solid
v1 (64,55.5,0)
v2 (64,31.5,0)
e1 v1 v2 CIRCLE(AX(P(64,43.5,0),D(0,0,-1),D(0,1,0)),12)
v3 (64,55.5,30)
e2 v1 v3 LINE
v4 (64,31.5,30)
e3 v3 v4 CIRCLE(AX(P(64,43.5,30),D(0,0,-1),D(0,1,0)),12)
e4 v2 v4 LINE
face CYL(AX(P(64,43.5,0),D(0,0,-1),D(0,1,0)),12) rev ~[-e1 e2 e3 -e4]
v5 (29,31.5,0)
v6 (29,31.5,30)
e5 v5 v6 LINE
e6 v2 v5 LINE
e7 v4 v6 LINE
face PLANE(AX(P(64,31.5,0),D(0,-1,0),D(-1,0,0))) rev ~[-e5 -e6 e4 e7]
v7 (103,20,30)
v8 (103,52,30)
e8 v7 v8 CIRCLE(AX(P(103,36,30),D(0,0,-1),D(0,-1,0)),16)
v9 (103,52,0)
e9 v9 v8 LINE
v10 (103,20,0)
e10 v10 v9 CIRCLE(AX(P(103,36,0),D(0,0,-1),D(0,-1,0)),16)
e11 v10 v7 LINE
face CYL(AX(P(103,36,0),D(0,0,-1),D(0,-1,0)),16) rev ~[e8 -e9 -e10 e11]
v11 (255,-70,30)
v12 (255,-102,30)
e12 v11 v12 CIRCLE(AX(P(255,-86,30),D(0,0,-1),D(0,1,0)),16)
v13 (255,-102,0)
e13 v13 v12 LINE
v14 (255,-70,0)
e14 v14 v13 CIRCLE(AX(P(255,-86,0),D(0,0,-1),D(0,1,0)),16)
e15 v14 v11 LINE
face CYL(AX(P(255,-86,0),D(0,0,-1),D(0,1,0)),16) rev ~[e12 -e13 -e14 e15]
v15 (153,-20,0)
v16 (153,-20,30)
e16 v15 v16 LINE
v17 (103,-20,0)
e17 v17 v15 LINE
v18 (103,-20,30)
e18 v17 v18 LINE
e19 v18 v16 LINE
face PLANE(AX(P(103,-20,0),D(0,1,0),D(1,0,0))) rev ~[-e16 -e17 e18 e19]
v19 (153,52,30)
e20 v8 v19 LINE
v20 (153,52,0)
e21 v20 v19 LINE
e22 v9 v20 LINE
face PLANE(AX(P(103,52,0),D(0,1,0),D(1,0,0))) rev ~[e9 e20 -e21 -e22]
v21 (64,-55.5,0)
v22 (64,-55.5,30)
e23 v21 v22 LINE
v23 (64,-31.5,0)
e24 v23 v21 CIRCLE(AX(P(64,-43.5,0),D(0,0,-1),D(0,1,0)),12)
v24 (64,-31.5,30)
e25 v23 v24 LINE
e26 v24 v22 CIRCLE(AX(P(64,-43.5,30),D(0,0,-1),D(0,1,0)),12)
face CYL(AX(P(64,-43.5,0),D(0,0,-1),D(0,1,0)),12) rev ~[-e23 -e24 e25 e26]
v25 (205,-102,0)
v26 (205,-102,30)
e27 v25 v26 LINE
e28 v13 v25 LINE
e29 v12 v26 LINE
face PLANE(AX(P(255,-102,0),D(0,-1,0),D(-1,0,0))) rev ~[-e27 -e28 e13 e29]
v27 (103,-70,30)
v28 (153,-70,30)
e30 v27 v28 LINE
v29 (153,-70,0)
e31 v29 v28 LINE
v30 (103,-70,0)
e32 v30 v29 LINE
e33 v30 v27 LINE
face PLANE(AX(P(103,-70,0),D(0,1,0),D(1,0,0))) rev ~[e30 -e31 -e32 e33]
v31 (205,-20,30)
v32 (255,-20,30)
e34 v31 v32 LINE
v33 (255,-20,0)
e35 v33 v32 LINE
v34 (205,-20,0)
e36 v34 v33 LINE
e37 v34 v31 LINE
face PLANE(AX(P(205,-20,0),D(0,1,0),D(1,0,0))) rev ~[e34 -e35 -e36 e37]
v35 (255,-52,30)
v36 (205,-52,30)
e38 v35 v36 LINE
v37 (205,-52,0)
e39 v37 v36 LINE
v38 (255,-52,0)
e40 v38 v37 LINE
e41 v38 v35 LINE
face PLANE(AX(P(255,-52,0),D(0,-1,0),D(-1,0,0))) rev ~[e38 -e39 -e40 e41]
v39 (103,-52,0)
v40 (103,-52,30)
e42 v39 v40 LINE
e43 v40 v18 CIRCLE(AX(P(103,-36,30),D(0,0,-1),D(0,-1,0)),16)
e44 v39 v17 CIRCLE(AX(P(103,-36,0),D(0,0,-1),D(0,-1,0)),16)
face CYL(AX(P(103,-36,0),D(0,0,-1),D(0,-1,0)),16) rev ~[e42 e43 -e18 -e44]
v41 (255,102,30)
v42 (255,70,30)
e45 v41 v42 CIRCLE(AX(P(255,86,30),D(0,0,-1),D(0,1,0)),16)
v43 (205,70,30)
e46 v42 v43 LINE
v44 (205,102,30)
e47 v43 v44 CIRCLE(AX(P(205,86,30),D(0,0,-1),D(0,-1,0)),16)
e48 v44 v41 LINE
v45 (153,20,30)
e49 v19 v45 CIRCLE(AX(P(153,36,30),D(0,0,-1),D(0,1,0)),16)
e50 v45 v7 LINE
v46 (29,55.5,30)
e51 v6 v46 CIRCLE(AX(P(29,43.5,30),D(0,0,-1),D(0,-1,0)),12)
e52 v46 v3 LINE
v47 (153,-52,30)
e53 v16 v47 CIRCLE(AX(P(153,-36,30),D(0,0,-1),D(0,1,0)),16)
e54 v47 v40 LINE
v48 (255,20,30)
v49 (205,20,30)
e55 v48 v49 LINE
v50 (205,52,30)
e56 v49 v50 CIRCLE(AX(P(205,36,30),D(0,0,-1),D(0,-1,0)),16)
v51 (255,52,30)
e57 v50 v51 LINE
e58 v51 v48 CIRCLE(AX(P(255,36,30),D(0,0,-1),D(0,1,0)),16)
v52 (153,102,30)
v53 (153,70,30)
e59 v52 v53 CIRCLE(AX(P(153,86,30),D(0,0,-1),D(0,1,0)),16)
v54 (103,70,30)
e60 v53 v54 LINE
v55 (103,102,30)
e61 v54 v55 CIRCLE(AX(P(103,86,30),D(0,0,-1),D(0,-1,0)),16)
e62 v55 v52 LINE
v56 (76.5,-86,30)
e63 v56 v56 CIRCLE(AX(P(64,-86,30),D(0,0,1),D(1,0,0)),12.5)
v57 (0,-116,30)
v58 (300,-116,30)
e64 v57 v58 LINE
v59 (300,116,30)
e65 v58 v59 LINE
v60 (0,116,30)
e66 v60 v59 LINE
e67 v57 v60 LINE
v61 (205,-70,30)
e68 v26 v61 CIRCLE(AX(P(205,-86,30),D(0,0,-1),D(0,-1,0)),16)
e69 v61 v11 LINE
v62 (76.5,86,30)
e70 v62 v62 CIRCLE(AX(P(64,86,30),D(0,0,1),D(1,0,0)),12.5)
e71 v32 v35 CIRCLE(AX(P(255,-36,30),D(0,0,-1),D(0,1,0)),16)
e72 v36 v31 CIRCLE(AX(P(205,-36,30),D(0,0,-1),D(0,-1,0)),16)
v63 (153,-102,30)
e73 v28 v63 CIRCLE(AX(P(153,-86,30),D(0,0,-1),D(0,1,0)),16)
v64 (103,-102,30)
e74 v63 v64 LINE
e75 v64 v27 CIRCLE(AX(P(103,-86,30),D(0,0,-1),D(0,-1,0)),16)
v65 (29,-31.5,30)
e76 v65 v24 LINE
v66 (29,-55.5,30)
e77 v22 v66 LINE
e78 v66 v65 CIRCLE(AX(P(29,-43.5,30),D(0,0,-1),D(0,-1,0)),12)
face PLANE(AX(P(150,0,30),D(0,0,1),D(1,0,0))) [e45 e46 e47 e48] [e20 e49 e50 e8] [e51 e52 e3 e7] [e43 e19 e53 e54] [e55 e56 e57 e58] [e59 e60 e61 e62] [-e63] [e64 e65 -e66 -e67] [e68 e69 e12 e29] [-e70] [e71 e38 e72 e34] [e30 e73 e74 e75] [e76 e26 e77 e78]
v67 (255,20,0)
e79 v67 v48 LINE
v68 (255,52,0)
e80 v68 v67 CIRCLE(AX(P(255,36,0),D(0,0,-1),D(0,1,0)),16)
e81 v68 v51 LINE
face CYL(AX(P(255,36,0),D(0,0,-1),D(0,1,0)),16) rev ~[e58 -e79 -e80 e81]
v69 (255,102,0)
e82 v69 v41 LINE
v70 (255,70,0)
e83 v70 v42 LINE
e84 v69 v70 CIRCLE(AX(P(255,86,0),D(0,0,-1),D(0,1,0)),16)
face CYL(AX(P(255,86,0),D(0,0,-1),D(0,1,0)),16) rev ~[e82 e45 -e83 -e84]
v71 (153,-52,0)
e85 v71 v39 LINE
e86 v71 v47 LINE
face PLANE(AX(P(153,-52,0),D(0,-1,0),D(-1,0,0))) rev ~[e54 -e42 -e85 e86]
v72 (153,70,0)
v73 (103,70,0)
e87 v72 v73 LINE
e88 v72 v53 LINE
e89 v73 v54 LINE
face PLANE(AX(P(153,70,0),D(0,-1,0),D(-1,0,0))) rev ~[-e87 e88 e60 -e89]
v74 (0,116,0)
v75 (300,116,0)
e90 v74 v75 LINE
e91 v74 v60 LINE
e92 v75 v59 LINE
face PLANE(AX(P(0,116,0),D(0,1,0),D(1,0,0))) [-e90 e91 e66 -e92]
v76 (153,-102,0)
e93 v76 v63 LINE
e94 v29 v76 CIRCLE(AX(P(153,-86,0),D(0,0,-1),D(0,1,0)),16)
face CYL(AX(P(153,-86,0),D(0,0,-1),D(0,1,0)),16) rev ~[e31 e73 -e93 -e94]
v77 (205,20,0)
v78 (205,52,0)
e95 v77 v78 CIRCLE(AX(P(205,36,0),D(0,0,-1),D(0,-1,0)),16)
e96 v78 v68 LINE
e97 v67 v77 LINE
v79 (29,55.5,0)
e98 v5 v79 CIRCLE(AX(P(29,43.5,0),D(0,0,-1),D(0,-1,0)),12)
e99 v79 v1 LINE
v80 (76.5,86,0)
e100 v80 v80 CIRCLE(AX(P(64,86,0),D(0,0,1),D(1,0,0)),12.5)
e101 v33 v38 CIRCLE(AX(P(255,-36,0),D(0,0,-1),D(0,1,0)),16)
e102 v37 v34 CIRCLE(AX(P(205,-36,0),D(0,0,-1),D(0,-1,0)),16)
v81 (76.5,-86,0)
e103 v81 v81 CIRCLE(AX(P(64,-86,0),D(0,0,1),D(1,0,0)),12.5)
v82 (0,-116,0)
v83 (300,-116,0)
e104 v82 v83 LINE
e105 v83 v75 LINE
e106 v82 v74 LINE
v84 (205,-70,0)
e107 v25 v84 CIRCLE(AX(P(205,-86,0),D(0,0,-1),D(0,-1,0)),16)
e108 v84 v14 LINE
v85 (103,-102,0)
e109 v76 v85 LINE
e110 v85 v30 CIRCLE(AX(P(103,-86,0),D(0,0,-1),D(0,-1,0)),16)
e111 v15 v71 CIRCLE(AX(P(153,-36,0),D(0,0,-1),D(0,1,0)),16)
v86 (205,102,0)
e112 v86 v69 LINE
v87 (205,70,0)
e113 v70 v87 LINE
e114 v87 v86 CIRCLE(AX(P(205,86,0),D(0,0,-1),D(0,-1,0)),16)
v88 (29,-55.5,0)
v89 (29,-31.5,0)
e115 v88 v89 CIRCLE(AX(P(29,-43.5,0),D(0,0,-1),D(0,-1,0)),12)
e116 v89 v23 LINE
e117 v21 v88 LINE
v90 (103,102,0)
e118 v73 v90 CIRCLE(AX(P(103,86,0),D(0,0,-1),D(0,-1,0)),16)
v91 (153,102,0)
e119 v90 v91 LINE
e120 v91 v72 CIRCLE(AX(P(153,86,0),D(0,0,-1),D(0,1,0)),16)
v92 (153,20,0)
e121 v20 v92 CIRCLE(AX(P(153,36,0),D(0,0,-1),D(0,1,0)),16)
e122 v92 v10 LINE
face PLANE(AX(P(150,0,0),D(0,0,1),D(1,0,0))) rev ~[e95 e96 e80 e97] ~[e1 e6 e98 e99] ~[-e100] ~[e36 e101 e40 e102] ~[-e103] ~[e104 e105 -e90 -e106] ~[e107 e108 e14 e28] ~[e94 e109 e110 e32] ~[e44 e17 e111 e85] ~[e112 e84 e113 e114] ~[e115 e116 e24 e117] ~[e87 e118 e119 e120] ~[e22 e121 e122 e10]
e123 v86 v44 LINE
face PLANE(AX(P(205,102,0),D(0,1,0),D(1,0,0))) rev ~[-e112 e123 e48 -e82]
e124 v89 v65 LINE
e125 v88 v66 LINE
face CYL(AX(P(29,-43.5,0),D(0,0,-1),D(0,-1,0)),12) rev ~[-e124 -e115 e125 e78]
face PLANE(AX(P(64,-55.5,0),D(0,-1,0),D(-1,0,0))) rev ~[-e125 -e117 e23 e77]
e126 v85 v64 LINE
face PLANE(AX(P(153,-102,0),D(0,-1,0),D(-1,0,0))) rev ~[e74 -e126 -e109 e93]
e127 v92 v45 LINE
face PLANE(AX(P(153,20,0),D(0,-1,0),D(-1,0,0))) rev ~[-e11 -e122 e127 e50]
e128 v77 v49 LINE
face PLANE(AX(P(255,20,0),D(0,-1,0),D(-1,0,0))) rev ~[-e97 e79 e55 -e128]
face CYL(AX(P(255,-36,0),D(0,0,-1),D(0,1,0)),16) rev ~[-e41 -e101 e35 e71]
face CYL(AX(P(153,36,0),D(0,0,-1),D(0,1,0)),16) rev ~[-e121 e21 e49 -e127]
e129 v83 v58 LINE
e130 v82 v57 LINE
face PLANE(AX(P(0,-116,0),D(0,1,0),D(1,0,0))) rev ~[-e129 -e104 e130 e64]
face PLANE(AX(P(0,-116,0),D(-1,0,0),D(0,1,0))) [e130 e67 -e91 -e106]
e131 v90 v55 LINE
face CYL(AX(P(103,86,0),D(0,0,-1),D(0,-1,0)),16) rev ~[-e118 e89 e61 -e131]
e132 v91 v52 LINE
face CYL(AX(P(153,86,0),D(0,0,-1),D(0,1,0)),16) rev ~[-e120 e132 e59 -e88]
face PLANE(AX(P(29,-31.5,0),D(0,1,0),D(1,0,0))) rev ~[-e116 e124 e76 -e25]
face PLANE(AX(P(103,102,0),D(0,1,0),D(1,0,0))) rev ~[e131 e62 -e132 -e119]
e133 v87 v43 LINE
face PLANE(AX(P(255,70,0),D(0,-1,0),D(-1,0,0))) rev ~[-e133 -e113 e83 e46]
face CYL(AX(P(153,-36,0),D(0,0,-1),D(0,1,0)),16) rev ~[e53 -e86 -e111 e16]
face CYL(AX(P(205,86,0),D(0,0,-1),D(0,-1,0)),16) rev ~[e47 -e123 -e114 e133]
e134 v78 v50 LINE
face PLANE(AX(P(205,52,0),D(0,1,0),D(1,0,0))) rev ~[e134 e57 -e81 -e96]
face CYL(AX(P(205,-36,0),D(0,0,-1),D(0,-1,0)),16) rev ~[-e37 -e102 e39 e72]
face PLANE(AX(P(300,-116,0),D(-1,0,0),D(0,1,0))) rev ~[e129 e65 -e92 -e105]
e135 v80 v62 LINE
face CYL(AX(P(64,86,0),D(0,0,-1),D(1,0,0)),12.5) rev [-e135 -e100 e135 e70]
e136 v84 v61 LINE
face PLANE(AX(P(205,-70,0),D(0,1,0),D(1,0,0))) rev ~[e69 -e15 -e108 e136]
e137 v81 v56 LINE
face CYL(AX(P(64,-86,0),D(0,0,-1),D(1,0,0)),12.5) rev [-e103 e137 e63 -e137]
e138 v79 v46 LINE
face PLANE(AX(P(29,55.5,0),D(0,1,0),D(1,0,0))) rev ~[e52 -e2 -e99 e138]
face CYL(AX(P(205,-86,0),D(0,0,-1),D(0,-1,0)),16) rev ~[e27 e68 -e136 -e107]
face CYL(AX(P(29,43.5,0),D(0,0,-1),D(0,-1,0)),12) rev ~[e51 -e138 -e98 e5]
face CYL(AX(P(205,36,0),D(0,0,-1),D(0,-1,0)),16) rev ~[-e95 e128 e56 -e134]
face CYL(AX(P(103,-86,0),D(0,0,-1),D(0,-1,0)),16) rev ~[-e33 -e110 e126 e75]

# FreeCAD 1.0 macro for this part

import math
import FreeCAD as App
import Part
import Sketcher

V = App.Vector
Q = App.Units.Quantity

doc = App.newDocument("Part")
body = doc.addObject("PartDesign::Body", "Body")

# Sketch on XY plane
sketch1 = doc.addObject("Sketcher::SketchObject", "Sketch")
body.addObject(sketch1)
sketch1.AttachmentSupport = (doc.XY_Plane, [""])
sketch1.MapMode = "FlatFace"
sketch1.addGeometry(Part.LineSegment(V(0, 116, 0), V(0, -116, 0)), False)
sketch1.addGeometry(Part.LineSegment(V(0, -116, 0), V(300, -116, 0)), False)
sketch1.addGeometry(Part.LineSegment(V(300, -116, 0), V(300, 116, 0)), False)
sketch1.addGeometry(Part.LineSegment(V(300, 116, 0), V(0, 116, 0)), False)
sketch1.addGeometry(Part.Circle(V(64, -86, 0), V(0, 0, 1), 12.5), False)
sketch1.addGeometry(Part.ArcOfCircle(Part.Circle(V(153, -86, 0), V(0, 0, 1), 16), math.radians(-90), math.radians(90)), False)
sketch1.addGeometry(Part.LineSegment(V(153, -102, 0), V(103, -102, 0)), False)
sketch1.addGeometry(Part.ArcOfCircle(Part.Circle(V(103, -86, 0), V(0, 0, 1), 16), math.radians(90), math.radians(270)), False)
sketch1.addGeometry(Part.LineSegment(V(103, -70, 0), V(153, -70, 0)), False)
sketch1.addGeometry(Part.ArcOfCircle(Part.Circle(V(64, -43.5, 0), V(0, 0, 1), 12), math.radians(-90), math.radians(90)), False)
sketch1.addGeometry(Part.LineSegment(V(64, -55.5, 0), V(29, -55.5, 0)), False)
sketch1.addGeometry(Part.ArcOfCircle(Part.Circle(V(29, -43.5, 0), V(0, 0, 1), 12), math.radians(90), math.radians(270)), False)
sketch1.addGeometry(Part.LineSegment(V(29, -31.5, 0), V(64, -31.5, 0)), False)
sketch1.addGeometry(Part.ArcOfCircle(Part.Circle(V(153, -36, 0), V(0, 0, 1), 16), math.radians(-90), math.radians(90)), False)
sketch1.addGeometry(Part.LineSegment(V(153, -52, 0), V(103, -52, 0)), False)
sketch1.addGeometry(Part.ArcOfCircle(Part.Circle(V(103, -36, 0), V(0, 0, 1), 16), math.radians(90), math.radians(270)), False)
sketch1.addGeometry(Part.LineSegment(V(103, -20, 0), V(153, -20, 0)), False)
sketch1.addGeometry(Part.ArcOfCircle(Part.Circle(V(255, -86, 0), V(0, 0, 1), 16), math.radians(-90), math.radians(90)), False)
sketch1.addGeometry(Part.LineSegment(V(255, -102, 0), V(205, -102, 0)), False)
sketch1.addGeometry(Part.ArcOfCircle(Part.Circle(V(205, -86, 0), V(0, 0, 1), 16), math.radians(90), math.radians(270)), False)
sketch1.addGeometry(Part.LineSegment(V(205, -70, 0), V(255, -70, 0)), False)
sketch1.addGeometry(Part.ArcOfCircle(Part.Circle(V(255, -36, 0), V(0, 0, 1), 16), math.radians(-90), math.radians(90)), False)
sketch1.addGeometry(Part.LineSegment(V(255, -52, 0), V(205, -52, 0)), False)
sketch1.addGeometry(Part.ArcOfCircle(Part.Circle(V(205, -36, 0), V(0, 0, 1), 16), math.radians(90), math.radians(270)), False)
sketch1.addGeometry(Part.LineSegment(V(205, -20, 0), V(255, -20, 0)), False)
sketch1.addGeometry(Part.LineSegment(V(64, 31.5, 0), V(29, 31.5, 0)), False)
sketch1.addGeometry(Part.ArcOfCircle(Part.Circle(V(29, 43.5, 0), V(0, 0, 1), 12), math.radians(90), math.radians(270)), False)
sketch1.addGeometry(Part.LineSegment(V(29, 55.5, 0), V(64, 55.5, 0)), False)
sketch1.addGeometry(Part.ArcOfCircle(Part.Circle(V(64, 43.5, 0), V(0, 0, 1), 12), math.radians(-90), math.radians(90)), False)
sketch1.addGeometry(Part.LineSegment(V(153, 20, 0), V(103, 20, 0)), False)
sketch1.addGeometry(Part.ArcOfCircle(Part.Circle(V(103, 36, 0), V(0, 0, 1), 16), math.radians(90), math.radians(270)), False)
sketch1.addGeometry(Part.LineSegment(V(103, 52, 0), V(153, 52, 0)), False)
sketch1.addGeometry(Part.ArcOfCircle(Part.Circle(V(153, 36, 0), V(0, 0, 1), 16), math.radians(-90), math.radians(90)), False)
sketch1.addGeometry(Part.Circle(V(64, 86, 0), V(0, 0, 1), 12.5), False)
sketch1.addGeometry(Part.LineSegment(V(153, 70, 0), V(103, 70, 0)), False)
sketch1.addGeometry(Part.ArcOfCircle(Part.Circle(V(103, 86, 0), V(0, 0, 1), 16), math.radians(90), math.radians(270)), False)
sketch1.addGeometry(Part.LineSegment(V(103, 102, 0), V(153, 102, 0)), False)
sketch1.addGeometry(Part.ArcOfCircle(Part.Circle(V(153, 86, 0), V(0, 0, 1), 16), math.radians(-90), math.radians(90)), False)
sketch1.addGeometry(Part.LineSegment(V(255, 20, 0), V(205, 20, 0)), False)
sketch1.addGeometry(Part.ArcOfCircle(Part.Circle(V(205, 36, 0), V(0, 0, 1), 16), math.radians(90), math.radians(270)), False)
sketch1.addGeometry(Part.LineSegment(V(205, 52, 0), V(255, 52, 0)), False)
sketch1.addGeometry(Part.ArcOfCircle(Part.Circle(V(255, 36, 0), V(0, 0, 1), 16), math.radians(-90), math.radians(90)), False)
sketch1.addGeometry(Part.LineSegment(V(255, 70, 0), V(205, 70, 0)), False)
sketch1.addGeometry(Part.ArcOfCircle(Part.Circle(V(205, 86, 0), V(0, 0, 1), 16), math.radians(90), math.radians(270)), False)
sketch1.addGeometry(Part.LineSegment(V(205, 102, 0), V(255, 102, 0)), False)
sketch1.addGeometry(Part.ArcOfCircle(Part.Circle(V(255, 86, 0), V(0, 0, 1), 16), math.radians(-90), math.radians(90)), False)
sketch1.addConstraint(Sketcher.Constraint("Coincident", 0, 2, 1, 1))
sketch1.addConstraint(Sketcher.Constraint("Coincident", 1, 2, 2, 1))
sketch1.addConstraint(Sketcher.Constraint("Coincident", 2, 2, 3, 1))
sketch1.addConstraint(Sketcher.Constraint("Coincident", 3, 2, 0, 1))
sketch1.addConstraint(Sketcher.Constraint("Tangent", 5, 1, 6, 1))
sketch1.addConstraint(Sketcher.Constraint("Tangent", 6, 2, 7, 2))
sketch1.addConstraint(Sketcher.Constraint("Tangent", 7, 1, 8, 1))
sketch1.addConstraint(Sketcher.Constraint("Tangent", 8, 2, 5, 2))
sketch1.addConstraint(Sketcher.Constraint("Tangent", 9, 1, 10, 1))
sketch1.addConstraint(Sketcher.Constraint("Tangent", 10, 2, 11, 2))
sketch1.addConstraint(Sketcher.Constraint("Tangent", 11, 1, 12, 1))
sketch1.addConstraint(Sketcher.Constraint("Tangent", 12, 2, 9, 2))
sketch1.addConstraint(Sketcher.Constraint("Tangent", 13, 1, 14, 1))
sketch1.addConstraint(Sketcher.Constraint("Tangent", 14, 2, 15, 2))
sketch1.addConstraint(Sketcher.Constraint("Tangent", 15, 1, 16, 1))
sketch1.addConstraint(Sketcher.Constraint("Tangent", 16, 2, 13, 2))
sketch1.addConstraint(Sketcher.Constraint("Tangent", 17, 1, 18, 1))
sketch1.addConstraint(Sketcher.Constraint("Tangent", 18, 2, 19, 2))
sketch1.addConstraint(Sketcher.Constraint("Tangent", 19, 1, 20, 1))
sketch1.addConstraint(Sketcher.Constraint("Tangent", 20, 2, 17, 2))
sketch1.addConstraint(Sketcher.Constraint("Tangent", 21, 1, 22, 1))
sketch1.addConstraint(Sketcher.Constraint("Tangent", 22, 2, 23, 2))
sketch1.addConstraint(Sketcher.Constraint("Tangent", 23, 1, 24, 1))
sketch1.addConstraint(Sketcher.Constraint("Tangent", 24, 2, 21, 2))
sketch1.addConstraint(Sketcher.Constraint("Tangent", 25, 2, 26, 2))
sketch1.addConstraint(Sketcher.Constraint("Tangent", 26, 1, 27, 1))
sketch1.addConstraint(Sketcher.Constraint("Tangent", 27, 2, 28, 2))
sketch1.addConstraint(Sketcher.Constraint("Tangent", 28, 1, 25, 1))
sketch1.addConstraint(Sketcher.Constraint("Tangent", 29, 2, 30, 2))
sketch1.addConstraint(Sketcher.Constraint("Tangent", 30, 1, 31, 1))
sketch1.addConstraint(Sketcher.Constraint("Tangent", 31, 2, 32, 2))
sketch1.addConstraint(Sketcher.Constraint("Tangent", 32, 1, 29, 1))
sketch1.addConstraint(Sketcher.Constraint("Tangent", 34, 2, 35, 2))
sketch1.addConstraint(Sketcher.Constraint("Tangent", 35, 1, 36, 1))
sketch1.addConstraint(Sketcher.Constraint("Tangent", 36, 2, 37, 2))
sketch1.addConstraint(Sketcher.Constraint("Tangent", 37, 1, 34, 1))
sketch1.addConstraint(Sketcher.Constraint("Tangent", 38, 2, 39, 2))
sketch1.addConstraint(Sketcher.Constraint("Tangent", 39, 1, 40, 1))
sketch1.addConstraint(Sketcher.Constraint("Tangent", 40, 2, 41, 2))
sketch1.addConstraint(Sketcher.Constraint("Tangent", 41, 1, 38, 1))
sketch1.addConstraint(Sketcher.Constraint("Tangent", 42, 2, 43, 2))
sketch1.addConstraint(Sketcher.Constraint("Tangent", 43, 1, 44, 1))
sketch1.addConstraint(Sketcher.Constraint("Tangent", 44, 2, 45, 2))
sketch1.addConstraint(Sketcher.Constraint("Tangent", 45, 1, 42, 1))
sketch1.addConstraint(Sketcher.Constraint("Vertical", 0))
sketch1.addConstraint(Sketcher.Constraint("Horizontal", 1))
sketch1.addConstraint(Sketcher.Constraint("Vertical", 2))
sketch1.addConstraint(Sketcher.Constraint("Horizontal", 3))
sketch1.addConstraint(Sketcher.Constraint("Horizontal", 6))
sketch1.addConstraint(Sketcher.Constraint("Horizontal", 8))
sketch1.addConstraint(Sketcher.Constraint("Horizontal", 10))
sketch1.addConstraint(Sketcher.Constraint("Horizontal", 12))
sketch1.addConstraint(Sketcher.Constraint("Horizontal", 14))
sketch1.addConstraint(Sketcher.Constraint("Horizontal", 16))
sketch1.addConstraint(Sketcher.Constraint("Horizontal", 18))
sketch1.addConstraint(Sketcher.Constraint("Horizontal", 20))
sketch1.addConstraint(Sketcher.Constraint("Horizontal", 22))
sketch1.addConstraint(Sketcher.Constraint("Horizontal", 24))
sketch1.addConstraint(Sketcher.Constraint("Horizontal", 25))
sketch1.addConstraint(Sketcher.Constraint("Horizontal", 27))
sketch1.addConstraint(Sketcher.Constraint("Horizontal", 29))
sketch1.addConstraint(Sketcher.Constraint("Horizontal", 31))
sketch1.addConstraint(Sketcher.Constraint("Horizontal", 34))
sketch1.addConstraint(Sketcher.Constraint("Horizontal", 36))
sketch1.addConstraint(Sketcher.Constraint("Horizontal", 38))
sketch1.addConstraint(Sketcher.Constraint("Horizontal", 40))
sketch1.addConstraint(Sketcher.Constraint("Horizontal", 42))
sketch1.addConstraint(Sketcher.Constraint("Horizontal", 44))
sketch1.addConstraint(Sketcher.Constraint("Equal", 7, 13))
sketch1.addConstraint(Sketcher.Constraint("Equal", 15, 17))
sketch1.addConstraint(Sketcher.Constraint("Equal", 19, 21))
sketch1.addConstraint(Sketcher.Constraint("Equal", 11, 26))
sketch1.addConstraint(Sketcher.Constraint("Equal", 23, 30))
sketch1.addConstraint(Sketcher.Constraint("Equal", 4, 33))
sketch1.addConstraint(Sketcher.Constraint("Equal", 32, 35))
sketch1.addConstraint(Sketcher.Constraint("Equal", 37, 39))
sketch1.addConstraint(Sketcher.Constraint("Equal", 41, 43))
sketch1.addConstraint(Sketcher.Constraint("Symmetric", 0, 2, 3, 2, -1, 1))
sketch1.addConstraint(Sketcher.Constraint("Symmetric", 11, 3, 26, 3, -1))
sketch1.addConstraint(Sketcher.Constraint("Symmetric", 15, 3, 30, 3, -1))
sketch1.addConstraint(Sketcher.Constraint("Symmetric", 4, 3, 33, 3, -1))
sketch1.addConstraint(Sketcher.Constraint("Symmetric", 7, 3, 35, 3, -1))
sketch1.addConstraint(Sketcher.Constraint("Symmetric", 23, 3, 39, 3, -1))
sketch1.addConstraint(Sketcher.Constraint("Symmetric", 19, 3, 43, 3, -1))
sketch1.addConstraint(Sketcher.Constraint("Horizontal", 4, 3, 5, 3))
sketch1.addConstraint(Sketcher.Constraint("Horizontal", 7, 3, 17, 3))
sketch1.addConstraint(Sketcher.Constraint("Horizontal", 15, 3, 21, 3))
sketch1.addConstraint(Sketcher.Constraint("Vertical", 4, 3, 9, 3))
sketch1.addConstraint(Sketcher.Constraint("Vertical", 5, 3, 13, 3))
sketch1.addConstraint(Sketcher.Constraint("Vertical", 7, 3, 15, 3))
sketch1.addConstraint(Sketcher.Constraint("Vertical", 17, 3, 21, 3))
sketch1.addConstraint(Sketcher.Constraint("Vertical", 19, 3, 23, 3))
sketch1.addConstraint(Sketcher.Constraint("Vertical", 9, 3, 28, 3))
sketch1.addConstraint(Sketcher.Constraint("Vertical", 13, 3, 32, 3))
sketch1.addConstraint(Sketcher.Constraint("Vertical", 32, 3, 37, 3))
sketch1.addConstraint(Sketcher.Constraint("Vertical", 21, 3, 41, 3))
sketch1.addConstraint(Sketcher.Constraint("Vertical", 41, 3, 45, 3))
sketch1.addConstraint(Sketcher.Constraint("Equal", 16, 18))
sketch1.addConstraint(Sketcher.Constraint("Diameter", 4, Q("25 mm")))
sketch1.addConstraint(Sketcher.Constraint("Radius", 5, Q("16 mm")))
sketch1.addConstraint(Sketcher.Constraint("Radius", 9, Q("12 mm")))
sketch1.addConstraint(Sketcher.Constraint("DistanceX", 1, 1, 1, 2, Q("300 mm")))
sketch1.addConstraint(Sketcher.Constraint("DistanceX", 6, 2, 6, 1, Q("50 mm")))
sketch1.addConstraint(Sketcher.Constraint("DistanceX", 10, 2, 10, 1, Q("35 mm")))
sketch1.addConstraint(Sketcher.Constraint("DistanceY", 0, 2, 0, 1, Q("232 mm")))
sketch1.addConstraint(Sketcher.Constraint("DistanceX", -1, 1, 4, 3, Q("64 mm")))
sketch1.addConstraint(Sketcher.Constraint("DistanceY", 4, 3, -1, 1, Q("86 mm")))
sketch1.addConstraint(Sketcher.Constraint("DistanceX", -1, 1, 5, 3, Q("153 mm")))
sketch1.addConstraint(Sketcher.Constraint("DistanceY", 13, 3, -1, 1, Q("36 mm")))
sketch1.addConstraint(Sketcher.Constraint("DistanceX", -1, 1, 17, 3, Q("255 mm")))
sketch1.addConstraint(Sketcher.Constraint("DistanceY", 9, 3, -1, 1, Q("43.5 mm")))
pad1 = doc.addObject("PartDesign::Pad", "Pad")
body.addObject(pad1)
pad1.Profile = sketch1
pad1.Length = 30

doc.recompute()
